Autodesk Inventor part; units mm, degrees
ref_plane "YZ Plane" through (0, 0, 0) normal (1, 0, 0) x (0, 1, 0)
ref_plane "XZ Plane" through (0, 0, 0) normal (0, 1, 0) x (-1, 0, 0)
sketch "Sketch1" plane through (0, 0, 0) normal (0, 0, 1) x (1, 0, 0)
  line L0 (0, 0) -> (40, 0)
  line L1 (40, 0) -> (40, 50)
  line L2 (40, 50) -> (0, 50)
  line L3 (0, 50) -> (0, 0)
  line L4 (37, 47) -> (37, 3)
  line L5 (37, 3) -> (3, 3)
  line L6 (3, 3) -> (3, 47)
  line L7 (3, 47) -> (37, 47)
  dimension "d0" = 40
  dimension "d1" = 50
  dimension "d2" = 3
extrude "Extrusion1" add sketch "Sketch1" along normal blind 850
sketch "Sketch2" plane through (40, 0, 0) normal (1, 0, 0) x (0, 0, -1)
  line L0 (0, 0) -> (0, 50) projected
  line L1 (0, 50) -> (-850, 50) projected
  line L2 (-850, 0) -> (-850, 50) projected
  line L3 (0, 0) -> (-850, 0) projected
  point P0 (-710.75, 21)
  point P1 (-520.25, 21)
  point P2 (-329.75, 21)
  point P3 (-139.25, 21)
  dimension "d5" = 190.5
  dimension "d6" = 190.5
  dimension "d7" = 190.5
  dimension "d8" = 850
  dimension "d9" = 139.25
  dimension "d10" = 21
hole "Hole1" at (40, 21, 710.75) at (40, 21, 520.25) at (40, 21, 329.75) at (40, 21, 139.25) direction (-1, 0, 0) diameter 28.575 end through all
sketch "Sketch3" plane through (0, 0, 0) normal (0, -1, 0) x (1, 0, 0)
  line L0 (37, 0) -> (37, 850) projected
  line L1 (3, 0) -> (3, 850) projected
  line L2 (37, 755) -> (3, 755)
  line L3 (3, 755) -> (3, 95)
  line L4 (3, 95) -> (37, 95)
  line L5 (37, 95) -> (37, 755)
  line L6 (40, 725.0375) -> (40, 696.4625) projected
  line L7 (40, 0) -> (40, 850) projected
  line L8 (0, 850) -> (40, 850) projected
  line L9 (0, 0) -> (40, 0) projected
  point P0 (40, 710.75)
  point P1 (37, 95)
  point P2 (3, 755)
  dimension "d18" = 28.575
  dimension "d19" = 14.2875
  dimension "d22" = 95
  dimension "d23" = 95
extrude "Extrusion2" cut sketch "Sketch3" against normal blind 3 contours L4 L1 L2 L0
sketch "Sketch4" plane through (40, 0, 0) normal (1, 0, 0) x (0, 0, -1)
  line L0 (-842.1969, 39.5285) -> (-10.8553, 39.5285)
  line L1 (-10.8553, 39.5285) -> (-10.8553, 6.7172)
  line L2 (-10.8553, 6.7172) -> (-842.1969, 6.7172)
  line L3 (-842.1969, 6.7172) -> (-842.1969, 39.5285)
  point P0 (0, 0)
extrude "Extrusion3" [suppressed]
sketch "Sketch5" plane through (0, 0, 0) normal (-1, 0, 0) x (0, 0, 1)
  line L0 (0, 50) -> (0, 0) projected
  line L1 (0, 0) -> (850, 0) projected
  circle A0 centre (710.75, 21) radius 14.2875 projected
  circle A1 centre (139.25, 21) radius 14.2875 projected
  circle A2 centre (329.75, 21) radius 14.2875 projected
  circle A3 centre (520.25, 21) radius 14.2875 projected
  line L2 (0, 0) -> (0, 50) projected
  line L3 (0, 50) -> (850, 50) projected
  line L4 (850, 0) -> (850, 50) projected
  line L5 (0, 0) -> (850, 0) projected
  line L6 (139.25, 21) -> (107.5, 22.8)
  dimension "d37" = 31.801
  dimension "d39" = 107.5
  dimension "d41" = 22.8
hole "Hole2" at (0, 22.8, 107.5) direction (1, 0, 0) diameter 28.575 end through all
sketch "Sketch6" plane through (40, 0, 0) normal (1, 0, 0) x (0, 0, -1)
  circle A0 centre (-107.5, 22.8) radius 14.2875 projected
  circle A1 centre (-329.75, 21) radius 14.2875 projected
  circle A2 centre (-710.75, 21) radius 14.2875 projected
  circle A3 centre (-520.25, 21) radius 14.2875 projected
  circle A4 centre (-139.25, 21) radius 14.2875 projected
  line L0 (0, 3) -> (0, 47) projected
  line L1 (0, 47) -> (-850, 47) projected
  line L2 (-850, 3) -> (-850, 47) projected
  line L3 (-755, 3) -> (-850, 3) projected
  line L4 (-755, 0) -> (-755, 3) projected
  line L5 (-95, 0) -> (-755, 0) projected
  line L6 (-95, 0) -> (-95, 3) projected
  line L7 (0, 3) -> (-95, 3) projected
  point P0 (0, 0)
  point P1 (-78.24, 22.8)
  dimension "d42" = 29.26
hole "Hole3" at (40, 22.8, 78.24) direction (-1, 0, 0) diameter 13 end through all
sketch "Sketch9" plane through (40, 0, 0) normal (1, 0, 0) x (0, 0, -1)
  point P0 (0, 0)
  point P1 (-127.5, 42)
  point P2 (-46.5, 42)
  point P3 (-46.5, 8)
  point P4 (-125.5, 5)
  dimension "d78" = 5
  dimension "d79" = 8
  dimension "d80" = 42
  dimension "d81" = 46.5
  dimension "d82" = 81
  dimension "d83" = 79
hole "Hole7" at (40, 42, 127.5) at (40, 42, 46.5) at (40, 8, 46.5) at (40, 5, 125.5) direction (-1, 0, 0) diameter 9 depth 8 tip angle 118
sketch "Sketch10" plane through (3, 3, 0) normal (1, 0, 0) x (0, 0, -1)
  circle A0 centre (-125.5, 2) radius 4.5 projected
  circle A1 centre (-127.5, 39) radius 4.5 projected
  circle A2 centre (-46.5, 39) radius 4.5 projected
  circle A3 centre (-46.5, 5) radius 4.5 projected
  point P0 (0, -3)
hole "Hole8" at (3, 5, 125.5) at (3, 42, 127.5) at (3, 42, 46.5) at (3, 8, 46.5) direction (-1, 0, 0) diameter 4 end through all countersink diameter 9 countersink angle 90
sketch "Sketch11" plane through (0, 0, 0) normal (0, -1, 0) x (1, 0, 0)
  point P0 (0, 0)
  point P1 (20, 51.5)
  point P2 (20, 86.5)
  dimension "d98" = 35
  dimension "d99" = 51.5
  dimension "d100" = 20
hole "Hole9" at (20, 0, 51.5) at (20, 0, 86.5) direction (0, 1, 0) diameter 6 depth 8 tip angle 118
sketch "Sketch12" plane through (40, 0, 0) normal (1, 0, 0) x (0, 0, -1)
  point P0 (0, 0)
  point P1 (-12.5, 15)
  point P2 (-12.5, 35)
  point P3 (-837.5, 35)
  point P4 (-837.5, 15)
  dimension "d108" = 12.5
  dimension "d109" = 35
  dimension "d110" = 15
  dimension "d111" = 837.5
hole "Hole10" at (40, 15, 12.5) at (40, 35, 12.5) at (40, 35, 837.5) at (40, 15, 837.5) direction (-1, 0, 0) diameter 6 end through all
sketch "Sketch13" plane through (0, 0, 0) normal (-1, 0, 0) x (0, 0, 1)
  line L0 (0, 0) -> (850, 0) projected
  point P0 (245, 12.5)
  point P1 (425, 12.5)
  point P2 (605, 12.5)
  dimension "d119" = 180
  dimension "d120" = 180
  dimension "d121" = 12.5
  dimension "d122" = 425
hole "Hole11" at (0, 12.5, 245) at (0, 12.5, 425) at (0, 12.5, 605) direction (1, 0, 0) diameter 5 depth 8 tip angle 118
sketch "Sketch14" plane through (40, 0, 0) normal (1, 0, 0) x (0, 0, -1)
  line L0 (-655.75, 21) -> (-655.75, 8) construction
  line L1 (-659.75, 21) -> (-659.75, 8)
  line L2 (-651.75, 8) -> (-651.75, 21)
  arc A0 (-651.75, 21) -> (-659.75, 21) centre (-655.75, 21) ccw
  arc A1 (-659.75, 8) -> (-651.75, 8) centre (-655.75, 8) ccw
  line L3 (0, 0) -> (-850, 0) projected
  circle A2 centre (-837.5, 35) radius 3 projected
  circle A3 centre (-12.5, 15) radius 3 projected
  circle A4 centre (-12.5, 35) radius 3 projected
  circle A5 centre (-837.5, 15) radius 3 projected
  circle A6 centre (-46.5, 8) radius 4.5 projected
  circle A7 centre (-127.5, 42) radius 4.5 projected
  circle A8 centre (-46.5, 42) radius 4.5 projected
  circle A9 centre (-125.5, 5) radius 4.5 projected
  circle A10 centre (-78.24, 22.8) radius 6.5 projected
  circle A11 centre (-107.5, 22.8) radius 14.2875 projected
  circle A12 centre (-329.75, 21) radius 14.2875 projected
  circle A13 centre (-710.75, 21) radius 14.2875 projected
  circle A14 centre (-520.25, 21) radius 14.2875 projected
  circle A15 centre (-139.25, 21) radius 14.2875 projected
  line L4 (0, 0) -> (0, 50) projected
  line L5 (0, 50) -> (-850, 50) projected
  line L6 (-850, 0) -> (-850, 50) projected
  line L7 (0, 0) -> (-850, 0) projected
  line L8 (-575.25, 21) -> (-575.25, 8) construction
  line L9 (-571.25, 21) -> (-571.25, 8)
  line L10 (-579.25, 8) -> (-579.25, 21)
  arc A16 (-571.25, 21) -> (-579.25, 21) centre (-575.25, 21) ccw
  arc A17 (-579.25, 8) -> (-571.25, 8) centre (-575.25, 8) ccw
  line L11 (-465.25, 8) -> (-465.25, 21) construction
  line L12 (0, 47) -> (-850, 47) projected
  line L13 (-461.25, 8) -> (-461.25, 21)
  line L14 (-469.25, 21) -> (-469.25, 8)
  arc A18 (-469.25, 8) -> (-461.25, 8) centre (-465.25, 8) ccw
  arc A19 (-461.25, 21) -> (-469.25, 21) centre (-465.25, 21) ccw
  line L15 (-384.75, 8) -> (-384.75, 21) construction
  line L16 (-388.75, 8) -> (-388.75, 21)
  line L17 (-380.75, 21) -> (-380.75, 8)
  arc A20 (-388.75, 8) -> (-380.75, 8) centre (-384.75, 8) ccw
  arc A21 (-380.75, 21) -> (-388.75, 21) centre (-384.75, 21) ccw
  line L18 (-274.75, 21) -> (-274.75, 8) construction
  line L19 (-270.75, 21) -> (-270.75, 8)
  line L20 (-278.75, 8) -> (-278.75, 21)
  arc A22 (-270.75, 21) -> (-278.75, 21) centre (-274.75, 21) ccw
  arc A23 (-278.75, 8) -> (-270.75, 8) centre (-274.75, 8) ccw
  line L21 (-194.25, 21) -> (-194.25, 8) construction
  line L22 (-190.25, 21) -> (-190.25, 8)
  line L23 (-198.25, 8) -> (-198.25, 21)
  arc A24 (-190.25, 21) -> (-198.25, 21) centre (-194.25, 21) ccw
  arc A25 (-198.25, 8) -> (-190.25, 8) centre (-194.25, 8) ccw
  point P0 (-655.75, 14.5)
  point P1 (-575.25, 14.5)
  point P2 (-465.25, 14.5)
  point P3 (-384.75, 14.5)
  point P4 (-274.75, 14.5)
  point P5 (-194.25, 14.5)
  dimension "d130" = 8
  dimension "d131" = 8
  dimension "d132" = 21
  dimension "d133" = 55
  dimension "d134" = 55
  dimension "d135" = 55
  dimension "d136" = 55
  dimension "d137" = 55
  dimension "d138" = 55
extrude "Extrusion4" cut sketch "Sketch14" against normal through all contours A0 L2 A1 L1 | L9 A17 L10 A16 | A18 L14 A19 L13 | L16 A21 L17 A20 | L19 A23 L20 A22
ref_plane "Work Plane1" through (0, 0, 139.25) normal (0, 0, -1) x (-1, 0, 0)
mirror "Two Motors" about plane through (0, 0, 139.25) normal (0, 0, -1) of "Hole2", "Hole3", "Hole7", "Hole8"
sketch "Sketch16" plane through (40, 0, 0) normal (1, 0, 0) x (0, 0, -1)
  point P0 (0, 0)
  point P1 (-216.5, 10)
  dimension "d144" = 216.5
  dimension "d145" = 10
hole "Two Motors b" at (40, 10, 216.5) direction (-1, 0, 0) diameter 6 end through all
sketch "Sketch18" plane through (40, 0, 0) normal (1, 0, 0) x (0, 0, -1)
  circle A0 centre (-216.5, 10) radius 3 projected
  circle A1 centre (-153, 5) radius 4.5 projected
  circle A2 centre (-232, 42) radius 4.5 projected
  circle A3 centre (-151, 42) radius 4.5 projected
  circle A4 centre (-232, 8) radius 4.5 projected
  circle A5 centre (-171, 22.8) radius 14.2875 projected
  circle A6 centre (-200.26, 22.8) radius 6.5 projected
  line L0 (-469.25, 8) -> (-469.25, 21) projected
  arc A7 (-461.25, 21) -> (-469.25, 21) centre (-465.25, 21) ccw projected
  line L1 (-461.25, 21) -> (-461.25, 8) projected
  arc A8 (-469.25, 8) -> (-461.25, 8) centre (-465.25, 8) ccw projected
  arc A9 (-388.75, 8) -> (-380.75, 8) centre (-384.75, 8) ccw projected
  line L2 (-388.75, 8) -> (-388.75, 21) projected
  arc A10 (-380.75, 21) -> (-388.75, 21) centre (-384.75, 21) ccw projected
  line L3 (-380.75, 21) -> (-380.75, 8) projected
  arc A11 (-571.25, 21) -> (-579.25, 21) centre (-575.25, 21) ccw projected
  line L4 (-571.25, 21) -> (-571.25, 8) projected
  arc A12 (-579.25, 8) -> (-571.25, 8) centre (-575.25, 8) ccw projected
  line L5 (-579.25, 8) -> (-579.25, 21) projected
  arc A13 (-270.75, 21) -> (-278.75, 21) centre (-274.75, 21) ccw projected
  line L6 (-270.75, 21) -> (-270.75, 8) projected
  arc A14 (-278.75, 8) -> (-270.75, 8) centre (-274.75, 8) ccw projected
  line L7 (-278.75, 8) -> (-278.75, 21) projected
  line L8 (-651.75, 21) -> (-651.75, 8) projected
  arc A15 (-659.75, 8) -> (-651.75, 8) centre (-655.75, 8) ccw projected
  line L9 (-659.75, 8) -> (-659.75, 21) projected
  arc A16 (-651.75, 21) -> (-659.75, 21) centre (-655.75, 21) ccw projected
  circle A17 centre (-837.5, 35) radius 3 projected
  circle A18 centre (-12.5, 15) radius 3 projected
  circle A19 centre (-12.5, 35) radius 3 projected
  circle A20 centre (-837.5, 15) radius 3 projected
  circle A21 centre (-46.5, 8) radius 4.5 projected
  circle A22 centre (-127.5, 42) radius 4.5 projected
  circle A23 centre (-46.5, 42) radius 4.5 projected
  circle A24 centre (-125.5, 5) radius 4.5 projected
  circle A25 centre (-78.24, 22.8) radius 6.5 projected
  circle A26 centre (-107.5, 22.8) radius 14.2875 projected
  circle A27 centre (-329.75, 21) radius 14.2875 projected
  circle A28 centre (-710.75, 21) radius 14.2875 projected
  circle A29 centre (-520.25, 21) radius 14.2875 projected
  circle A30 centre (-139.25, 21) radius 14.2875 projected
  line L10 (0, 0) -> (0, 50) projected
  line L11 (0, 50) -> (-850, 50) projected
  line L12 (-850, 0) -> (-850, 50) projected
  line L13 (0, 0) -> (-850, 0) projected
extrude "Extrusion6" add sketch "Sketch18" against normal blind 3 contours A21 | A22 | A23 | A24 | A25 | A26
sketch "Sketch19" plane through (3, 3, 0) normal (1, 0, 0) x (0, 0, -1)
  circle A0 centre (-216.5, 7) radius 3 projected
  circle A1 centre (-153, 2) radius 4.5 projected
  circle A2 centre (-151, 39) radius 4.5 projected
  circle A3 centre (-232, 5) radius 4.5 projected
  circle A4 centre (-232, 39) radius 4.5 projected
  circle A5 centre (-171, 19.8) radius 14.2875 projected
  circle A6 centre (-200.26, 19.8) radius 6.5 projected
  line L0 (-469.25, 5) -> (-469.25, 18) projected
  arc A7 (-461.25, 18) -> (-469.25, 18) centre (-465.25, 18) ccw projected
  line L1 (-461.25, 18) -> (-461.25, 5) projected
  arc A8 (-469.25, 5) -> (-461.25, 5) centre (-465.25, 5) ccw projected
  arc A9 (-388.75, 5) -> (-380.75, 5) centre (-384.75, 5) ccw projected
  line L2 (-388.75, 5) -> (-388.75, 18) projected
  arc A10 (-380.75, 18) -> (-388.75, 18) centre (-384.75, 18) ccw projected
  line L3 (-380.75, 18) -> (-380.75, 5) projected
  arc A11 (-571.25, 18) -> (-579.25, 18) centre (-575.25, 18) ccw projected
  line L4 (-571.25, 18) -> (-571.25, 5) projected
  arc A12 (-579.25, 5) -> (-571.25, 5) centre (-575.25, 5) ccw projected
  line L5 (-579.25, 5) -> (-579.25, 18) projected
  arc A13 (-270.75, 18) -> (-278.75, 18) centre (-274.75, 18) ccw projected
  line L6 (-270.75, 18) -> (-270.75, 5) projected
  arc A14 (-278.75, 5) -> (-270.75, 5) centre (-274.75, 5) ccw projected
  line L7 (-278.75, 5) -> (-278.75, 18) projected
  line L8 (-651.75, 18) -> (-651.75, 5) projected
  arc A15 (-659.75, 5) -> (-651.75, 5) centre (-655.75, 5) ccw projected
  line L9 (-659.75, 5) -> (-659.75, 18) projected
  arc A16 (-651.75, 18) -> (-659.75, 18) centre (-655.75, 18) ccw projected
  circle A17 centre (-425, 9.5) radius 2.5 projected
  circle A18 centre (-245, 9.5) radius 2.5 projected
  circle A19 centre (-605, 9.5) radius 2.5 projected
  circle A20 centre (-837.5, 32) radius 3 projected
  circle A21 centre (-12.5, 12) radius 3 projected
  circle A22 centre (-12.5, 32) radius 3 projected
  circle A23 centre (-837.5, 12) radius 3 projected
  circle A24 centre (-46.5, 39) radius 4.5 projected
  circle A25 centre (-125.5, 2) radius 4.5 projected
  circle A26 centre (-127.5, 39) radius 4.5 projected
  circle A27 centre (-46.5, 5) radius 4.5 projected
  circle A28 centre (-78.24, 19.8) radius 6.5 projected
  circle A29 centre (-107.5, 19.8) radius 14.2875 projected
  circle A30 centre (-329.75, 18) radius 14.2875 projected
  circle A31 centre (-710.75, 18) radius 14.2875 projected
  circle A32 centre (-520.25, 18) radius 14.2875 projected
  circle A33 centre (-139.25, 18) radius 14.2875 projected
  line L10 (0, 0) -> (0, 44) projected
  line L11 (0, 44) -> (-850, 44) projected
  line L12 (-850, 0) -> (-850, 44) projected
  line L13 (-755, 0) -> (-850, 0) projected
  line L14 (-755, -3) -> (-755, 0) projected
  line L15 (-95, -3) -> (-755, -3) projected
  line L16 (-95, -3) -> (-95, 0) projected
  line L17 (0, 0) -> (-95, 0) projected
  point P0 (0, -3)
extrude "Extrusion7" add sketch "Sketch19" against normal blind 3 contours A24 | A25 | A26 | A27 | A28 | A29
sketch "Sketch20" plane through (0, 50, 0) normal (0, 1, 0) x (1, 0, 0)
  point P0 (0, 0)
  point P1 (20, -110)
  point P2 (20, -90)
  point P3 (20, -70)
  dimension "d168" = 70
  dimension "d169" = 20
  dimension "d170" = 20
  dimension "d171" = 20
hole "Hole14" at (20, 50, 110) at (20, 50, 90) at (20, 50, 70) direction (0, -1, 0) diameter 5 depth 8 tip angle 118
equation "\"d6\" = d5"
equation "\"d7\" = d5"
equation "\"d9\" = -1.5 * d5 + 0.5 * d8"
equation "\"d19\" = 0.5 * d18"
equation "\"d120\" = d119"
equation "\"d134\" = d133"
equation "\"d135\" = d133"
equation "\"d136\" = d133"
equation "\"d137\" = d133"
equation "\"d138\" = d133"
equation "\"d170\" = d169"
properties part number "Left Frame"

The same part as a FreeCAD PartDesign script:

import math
import FreeCAD as App
import Part
import Sketcher

doc = App.newDocument("Part")
body = doc.addObject("PartDesign::Body", "Body")

# Sketch on XY plane
sketch1 = body.newObject("Sketcher::SketchObject", "Sketch")
sketch1.AttachmentSupport = (doc.getObject("XY_Plane"), [""])
sketch1.MapMode = "FlatFace"
sketch1.addGeometry(Part.LineSegment(App.Vector(0, 50, 0), App.Vector(0, 0, 0)), False)
sketch1.addGeometry(Part.LineSegment(App.Vector(0, 0, 0), App.Vector(40, 0, 0)), False)
sketch1.addGeometry(Part.LineSegment(App.Vector(40, 0, 0), App.Vector(40, 50, 0)), False)
sketch1.addGeometry(Part.LineSegment(App.Vector(40, 50, 0), App.Vector(0, 50, 0)), False)
sketch1.addGeometry(Part.LineSegment(App.Vector(3, 47, 0), App.Vector(37, 47, 0)), False)
sketch1.addGeometry(Part.LineSegment(App.Vector(37, 47, 0), App.Vector(37, 3, 0)), False)
sketch1.addGeometry(Part.LineSegment(App.Vector(37, 3, 0), App.Vector(3, 3, 0)), False)
sketch1.addGeometry(Part.LineSegment(App.Vector(3, 3, 0), App.Vector(3, 47, 0)), False)
sketch1.addConstraint(Sketcher.Constraint("Coincident", 0, 2, 1, 1))
sketch1.addConstraint(Sketcher.Constraint("Coincident", 1, 2, 2, 1))
sketch1.addConstraint(Sketcher.Constraint("Coincident", 2, 2, 3, 1))
sketch1.addConstraint(Sketcher.Constraint("Coincident", 3, 2, 0, 1))
sketch1.addConstraint(Sketcher.Constraint("Coincident", 4, 2, 5, 1))
sketch1.addConstraint(Sketcher.Constraint("Coincident", 5, 2, 6, 1))
sketch1.addConstraint(Sketcher.Constraint("Coincident", 6, 2, 7, 1))
sketch1.addConstraint(Sketcher.Constraint("Coincident", 7, 2, 4, 1))
sketch1.addConstraint(Sketcher.Constraint("Vertical", 0))
sketch1.addConstraint(Sketcher.Constraint("Horizontal", 1))
sketch1.addConstraint(Sketcher.Constraint("Vertical", 2))
sketch1.addConstraint(Sketcher.Constraint("Horizontal", 3))
sketch1.addConstraint(Sketcher.Constraint("Horizontal", 4))
sketch1.addConstraint(Sketcher.Constraint("Vertical", 5))
sketch1.addConstraint(Sketcher.Constraint("Horizontal", 6))
sketch1.addConstraint(Sketcher.Constraint("Vertical", 7))
sketch1.addConstraint(Sketcher.Constraint("Coincident", 0, 2, -1, 1))
sketch1.addConstraint(Sketcher.Constraint("DistanceX", 1, 1, 1, 2, 40.0))
sketch1.addConstraint(Sketcher.Constraint("DistanceY", 0, 2, 0, 1, 50.0))
sketch1.addConstraint(Sketcher.Constraint("DistanceY", -1, 1, 5, 2, 3.0))
sketch1.addConstraint(Sketcher.Constraint("DistanceX", -1, 1, 6, 2, 3.0))
sketch1.addConstraint(Sketcher.Constraint("DistanceX", 4, 2, 2, 2, 3.0))
sketch1.addConstraint(Sketcher.Constraint("DistanceY", 4, 2, 2, 2, 3.0))
pad1 = body.newObject("PartDesign::Pad", "Pad")
pad1.Profile = sketch1
pad1.Length = 850

# Sketch on YZ plane
sketch2 = body.newObject("Sketcher::SketchObject", "Sketch001")
sketch2.AttachmentSupport = (doc.getObject("YZ_Plane"), [""])
sketch2.MapMode = "FlatFace"
sketch2.AttachmentOffset = App.Placement(App.Vector(0, 0, 40), App.Rotation())
sketch2.addGeometry(Part.Circle(App.Vector(21, 711, 0), App.Vector(0, 0, 1), 14), False)
sketch2.addGeometry(Part.Circle(App.Vector(21, 520, 0), App.Vector(0, 0, 1), 14), False)
sketch2.addGeometry(Part.Circle(App.Vector(21, 330, 0), App.Vector(0, 0, 1), 14), False)
sketch2.addGeometry(Part.Circle(App.Vector(21, 139, 0), App.Vector(0, 0, 1), 14), False)
sketch2.addConstraint(Sketcher.Constraint("Equal", 0, 1))
sketch2.addConstraint(Sketcher.Constraint("Equal", 1, 2))
sketch2.addConstraint(Sketcher.Constraint("Equal", 2, 3))
sketch2.addConstraint(Sketcher.Constraint("Vertical", 0, 3, 1, 3))
sketch2.addConstraint(Sketcher.Constraint("Vertical", 1, 3, 2, 3))
sketch2.addConstraint(Sketcher.Constraint("Vertical", 2, 3, 3, 3))
sketch2.addConstraint(Sketcher.Constraint("Diameter", 0, 28.575))
sketch2.addConstraint(Sketcher.Constraint("DistanceX", -1, 1, 0, 3, 21.0))
sketch2.addConstraint(Sketcher.Constraint("DistanceY", 2, 3, 0, 3, 381.0))
sketch2.addConstraint(Sketcher.Constraint("DistanceY", 3, 3, 1, 3, 381.0))
sketch2.addConstraint(Sketcher.Constraint("DistanceY", 1, 3, 0, 3, 190.5))
sketch2.addConstraint(Sketcher.Constraint("DistanceY", -1, 1, 0, 3, 710.75))
doc.recompute()
hole = body.newObject("PartDesign::Hole", "Hole")
hole.Profile = sketch2
hole.ThreadType = "None"
hole.Diameter = 28.575
hole.DepthType = "ThroughAll"

# Sketch on XZ plane
sketch3 = body.newObject("Sketcher::SketchObject", "Sketch002")
sketch3.AttachmentSupport = (doc.getObject("XZ_Plane"), [""])
sketch3.MapMode = "FlatFace"
sketch3.addGeometry(Part.LineSegment(App.Vector(3, 95, 0), App.Vector(37, 95, 0)), False)
sketch3.addGeometry(Part.LineSegment(App.Vector(37, 95, 0), App.Vector(37, 755, 0)), False)
sketch3.addGeometry(Part.LineSegment(App.Vector(37, 755, 0), App.Vector(3, 755, 0)), False)
sketch3.addGeometry(Part.LineSegment(App.Vector(3, 755, 0), App.Vector(3, 95, 0)), False)
sketch3.addConstraint(Sketcher.Constraint("Coincident", 0, 2, 1, 1))
sketch3.addConstraint(Sketcher.Constraint("Coincident", 1, 2, 2, 1))
sketch3.addConstraint(Sketcher.Constraint("Coincident", 2, 2, 3, 1))
sketch3.addConstraint(Sketcher.Constraint("Coincident", 3, 2, 0, 1))
sketch3.addConstraint(Sketcher.Constraint("Horizontal", 0))
sketch3.addConstraint(Sketcher.Constraint("Vertical", 1))
sketch3.addConstraint(Sketcher.Constraint("Horizontal", 2))
sketch3.addConstraint(Sketcher.Constraint("Vertical", 3))
sketch3.addConstraint(Sketcher.Constraint("DistanceY", -1, 1, 0, 2, 95.0))
sketch3.addConstraint(Sketcher.Constraint("DistanceX", 0, 1, 0, 2, 34.0))
sketch3.addConstraint(Sketcher.Constraint("DistanceY", 1, 1, 1, 2, 660.0))
sketch3.addConstraint(Sketcher.Constraint("DistanceX", -1, 1, 0, 2, 37.0))
pocket1 = body.newObject("PartDesign::Pocket", "Pocket")
pocket1.Profile = sketch3
pocket1.Length = 3

# Sketch on YZ plane
sketch4 = body.newObject("Sketcher::SketchObject", "Sketch003")
sketch4.AttachmentSupport = (doc.getObject("YZ_Plane"), [""])
sketch4.MapMode = "FlatFace"
sketch4.addGeometry(Part.Circle(App.Vector(23, 108, 0), App.Vector(0, 0, 1), 14), False)
sketch4.addConstraint(Sketcher.Constraint("Diameter", 0, 28.575))
sketch4.addConstraint(Sketcher.Constraint("DistanceX", -1, 1, 0, 3, 22.8))
sketch4.addConstraint(Sketcher.Constraint("DistanceY", -1, 1, 0, 3, 107.5))
doc.recompute()
hole2 = body.newObject("PartDesign::Hole", "Hole001")
hole2.Profile = sketch4
hole2.ThreadType = "None"
hole2.Diameter = 28.575
hole2.DepthType = "ThroughAll"
hole2.Reversed = True

# Sketch on YZ plane
sketch5 = body.newObject("Sketcher::SketchObject", "Sketch004")
sketch5.AttachmentSupport = (doc.getObject("YZ_Plane"), [""])
sketch5.MapMode = "FlatFace"
sketch5.AttachmentOffset = App.Placement(App.Vector(0, 0, 40), App.Rotation())
sketch5.addGeometry(Part.Circle(App.Vector(23, 78, 0), App.Vector(0, 0, 1), 6), False)
sketch5.addConstraint(Sketcher.Constraint("Diameter", 0, 13.0))
sketch5.addConstraint(Sketcher.Constraint("DistanceX", -1, 1, 0, 3, 22.8))
sketch5.addConstraint(Sketcher.Constraint("DistanceY", -1, 1, 0, 3, 78.24))
doc.recompute()
hole3 = body.newObject("PartDesign::Hole", "Hole002")
hole3.Profile = sketch5
hole3.ThreadType = "None"
hole3.Diameter = 13
hole3.DepthType = "ThroughAll"

# Sketch on YZ plane
sketch6 = body.newObject("Sketcher::SketchObject", "Sketch005")
sketch6.AttachmentSupport = (doc.getObject("YZ_Plane"), [""])
sketch6.MapMode = "FlatFace"
sketch6.AttachmentOffset = App.Placement(App.Vector(0, 0, 40), App.Rotation())
sketch6.addGeometry(Part.Circle(App.Vector(42, 127.5, 0), App.Vector(0, 0, 1), 4.5), False)
sketch6.addGeometry(Part.Circle(App.Vector(42, 46.5, 0), App.Vector(0, 0, 1), 4.5), False)
sketch6.addGeometry(Part.Circle(App.Vector(8, 46.5, 0), App.Vector(0, 0, 1), 4.5), False)
sketch6.addGeometry(Part.Circle(App.Vector(5, 125.5, 0), App.Vector(0, 0, 1), 4.5), False)
sketch6.addConstraint(Sketcher.Constraint("Equal", 0, 1))
sketch6.addConstraint(Sketcher.Constraint("Equal", 1, 2))
sketch6.addConstraint(Sketcher.Constraint("Equal", 2, 3))
sketch6.addConstraint(Sketcher.Constraint("Horizontal", 1, 3, 2, 3))
sketch6.addConstraint(Sketcher.Constraint("Vertical", 0, 3, 1, 3))
sketch6.addConstraint(Sketcher.Constraint("Diameter", 0, 9.0))
sketch6.addConstraint(Sketcher.Constraint("DistanceX", -1, 1, 0, 3, 42.0))
sketch6.addConstraint(Sketcher.Constraint("DistanceX", -1, 1, 2, 3, 8.0))
sketch6.addConstraint(Sketcher.Constraint("DistanceX", -1, 1, 3, 3, 5.0))
sketch6.addConstraint(Sketcher.Constraint("DistanceY", 1, 3, 0, 3, 81.0))
sketch6.addConstraint(Sketcher.Constraint("DistanceY", 3, 3, 0, 3, 2.0))
sketch6.addConstraint(Sketcher.Constraint("DistanceY", -1, 1, 0, 3, 127.5))
doc.recompute()
hole4 = body.newObject("PartDesign::Hole", "Hole003")
hole4.Profile = sketch6
hole4.ThreadType = "None"
hole4.Diameter = 9
hole4.DepthType = "Dimension"
hole4.Depth = 8
hole4.DrillPoint = "Angled"
hole4.DrillPointAngle = 118

# Sketch on YZ plane
sketch7 = body.newObject("Sketcher::SketchObject", "Sketch006")
sketch7.AttachmentSupport = (doc.getObject("YZ_Plane"), [""])
sketch7.MapMode = "FlatFace"
sketch7.AttachmentOffset = App.Placement(App.Vector(0, 0, 3), App.Rotation())
sketch7.addGeometry(Part.Circle(App.Vector(5, 125.5, 0), App.Vector(0, 0, 1), 2), False)
sketch7.addGeometry(Part.Circle(App.Vector(42, 127.5, 0), App.Vector(0, 0, 1), 2), False)
sketch7.addGeometry(Part.Circle(App.Vector(42, 46.5, 0), App.Vector(0, 0, 1), 2), False)
sketch7.addGeometry(Part.Circle(App.Vector(8, 46.5, 0), App.Vector(0, 0, 1), 2), False)
sketch7.addConstraint(Sketcher.Constraint("Equal", 0, 1))
sketch7.addConstraint(Sketcher.Constraint("Equal", 1, 2))
sketch7.addConstraint(Sketcher.Constraint("Equal", 2, 3))
sketch7.addConstraint(Sketcher.Constraint("Horizontal", 2, 3, 3, 3))
sketch7.addConstraint(Sketcher.Constraint("Vertical", 1, 3, 2, 3))
sketch7.addConstraint(Sketcher.Constraint("Diameter", 0, 4.0))
sketch7.addConstraint(Sketcher.Constraint("DistanceX", -1, 1, 0, 3, 5.0))
sketch7.addConstraint(Sketcher.Constraint("DistanceX", -1, 1, 1, 3, 42.0))
sketch7.addConstraint(Sketcher.Constraint("DistanceX", -1, 1, 3, 3, 8.0))
sketch7.addConstraint(Sketcher.Constraint("DistanceY", 0, 3, 1, 3, 2.0))
sketch7.addConstraint(Sketcher.Constraint("DistanceY", 2, 3, 1, 3, 81.0))
sketch7.addConstraint(Sketcher.Constraint("DistanceY", -1, 1, 0, 3, 125.5))
doc.recompute()
hole5 = body.newObject("PartDesign::Hole", "Hole004")
hole5.Profile = sketch7
hole5.ThreadType = "None"
hole5.Diameter = 4
hole5.DepthType = "ThroughAll"
hole5.HoleCutType = "Countersink"
hole5.HoleCutDiameter = 9
hole5.HoleCutCountersinkAngle = 90

# Sketch on XZ plane
sketch8 = body.newObject("Sketcher::SketchObject", "Sketch007")
sketch8.AttachmentSupport = (doc.getObject("XZ_Plane"), [""])
sketch8.MapMode = "FlatFace"
sketch8.addGeometry(Part.Circle(App.Vector(20, 51.5, 0), App.Vector(0, 0, 1), 3), False)
sketch8.addGeometry(Part.Circle(App.Vector(20, 86.5, 0), App.Vector(0, 0, 1), 3), False)
sketch8.addConstraint(Sketcher.Constraint("Equal", 0, 1))
sketch8.addConstraint(Sketcher.Constraint("Vertical", 0, 3, 1, 3))
sketch8.addConstraint(Sketcher.Constraint("Diameter", 0, 6.0))
sketch8.addConstraint(Sketcher.Constraint("DistanceX", -1, 1, 0, 3, 20.0))
sketch8.addConstraint(Sketcher.Constraint("DistanceY", 0, 3, 1, 3, 35.0))
sketch8.addConstraint(Sketcher.Constraint("DistanceY", -1, 1, 0, 3, 51.5))
doc.recompute()
hole6 = body.newObject("PartDesign::Hole", "Hole005")
hole6.Profile = sketch8
hole6.ThreadType = "None"
hole6.Diameter = 6
hole6.DepthType = "Dimension"
hole6.Depth = 8
hole6.DrillPoint = "Angled"
hole6.DrillPointAngle = 118

# Sketch on YZ plane
sketch9 = body.newObject("Sketcher::SketchObject", "Sketch008")
sketch9.AttachmentSupport = (doc.getObject("YZ_Plane"), [""])
sketch9.MapMode = "FlatFace"
sketch9.AttachmentOffset = App.Placement(App.Vector(0, 0, 40), App.Rotation())
sketch9.addGeometry(Part.Circle(App.Vector(15, 12.5, 0), App.Vector(0, 0, 1), 3), False)
sketch9.addGeometry(Part.Circle(App.Vector(35, 12.5, 0), App.Vector(0, 0, 1), 3), False)
sketch9.addGeometry(Part.Circle(App.Vector(35, 837.5, 0), App.Vector(0, 0, 1), 3), False)
sketch9.addGeometry(Part.Circle(App.Vector(15, 837.5, 0), App.Vector(0, 0, 1), 3), False)
sketch9.addConstraint(Sketcher.Constraint("Equal", 0, 1))
sketch9.addConstraint(Sketcher.Constraint("Equal", 1, 2))
sketch9.addConstraint(Sketcher.Constraint("Equal", 2, 3))
sketch9.addConstraint(Sketcher.Constraint("Horizontal", 0, 3, 1, 3))
sketch9.addConstraint(Sketcher.Constraint("Horizontal", 2, 3, 3, 3))
sketch9.addConstraint(Sketcher.Constraint("Vertical", 1, 3, 2, 3))
sketch9.addConstraint(Sketcher.Constraint("Vertical", 0, 3, 3, 3))
sketch9.addConstraint(Sketcher.Constraint("Diameter", 0, 6.0))
sketch9.addConstraint(Sketcher.Constraint("DistanceX", -1, 1, 0, 3, 15.0))
sketch9.addConstraint(Sketcher.Constraint("DistanceX", -1, 1, 1, 3, 35.0))
sketch9.addConstraint(Sketcher.Constraint("DistanceY", 1, 3, 2, 3, 825.0))
sketch9.addConstraint(Sketcher.Constraint("DistanceY", -1, 1, 0, 3, 12.5))
doc.recompute()
hole7 = body.newObject("PartDesign::Hole", "Hole006")
hole7.Profile = sketch9
hole7.ThreadType = "None"
hole7.Diameter = 6
hole7.DepthType = "ThroughAll"

# Sketch on YZ plane
sketch10 = body.newObject("Sketcher::SketchObject", "Sketch009")
sketch10.AttachmentSupport = (doc.getObject("YZ_Plane"), [""])
sketch10.MapMode = "FlatFace"
sketch10.addGeometry(Part.Circle(App.Vector(12.5, 245, 0), App.Vector(0, 0, 1), 2.5), False)
sketch10.addGeometry(Part.Circle(App.Vector(12.5, 425, 0), App.Vector(0, 0, 1), 2.5), False)
sketch10.addGeometry(Part.Circle(App.Vector(12.5, 605, 0), App.Vector(0, 0, 1), 2.5), False)
sketch10.addConstraint(Sketcher.Constraint("Equal", 0, 1))
sketch10.addConstraint(Sketcher.Constraint("Equal", 1, 2))
sketch10.addConstraint(Sketcher.Constraint("Vertical", 0, 3, 1, 3))
sketch10.addConstraint(Sketcher.Constraint("Vertical", 1, 3, 2, 3))
sketch10.addConstraint(Sketcher.Constraint("Diameter", 0, 5.0))
sketch10.addConstraint(Sketcher.Constraint("DistanceY", -1, 1, 0, 3, 245.0))
sketch10.addConstraint(Sketcher.Constraint("DistanceY", -1, 1, 1, 3, 425.0))
sketch10.addConstraint(Sketcher.Constraint("DistanceY", -1, 1, 2, 3, 605.0))
sketch10.addConstraint(Sketcher.Constraint("DistanceX", -1, 1, 0, 3, 12.5))
doc.recompute()
hole8 = body.newObject("PartDesign::Hole", "Hole007")
hole8.Profile = sketch10
hole8.ThreadType = "None"
hole8.Diameter = 5
hole8.DepthType = "Dimension"
hole8.Depth = 8
hole8.DrillPoint = "Angled"
hole8.DrillPointAngle = 118
hole8.Reversed = True

# Sketch on YZ plane
sketch11 = body.newObject("Sketcher::SketchObject", "Sketch010")
sketch11.AttachmentSupport = (doc.getObject("YZ_Plane"), [""])
sketch11.MapMode = "FlatFace"
sketch11.AttachmentOffset = App.Placement(App.Vector(0, 0, 40), App.Rotation())
sketch11.addGeometry(Part.ArcOfCircle(Part.Circle(App.Vector(21, 655.8, 0), App.Vector(0, 0, 1), 4), math.radians(-90), math.radians(90)), False)
sketch11.addGeometry(Part.LineSegment(App.Vector(21, 659.8, 0), App.Vector(8, 659.8, 0)), False)
sketch11.addGeometry(Part.ArcOfCircle(Part.Circle(App.Vector(8, 655.8, 0), App.Vector(0, 0, 1), 4), math.radians(90), math.radians(270)), False)
sketch11.addGeometry(Part.LineSegment(App.Vector(8, 651.8, 0), App.Vector(21, 651.8, 0)), False)
sketch11.addGeometry(Part.LineSegment(App.Vector(8, 571.2, 0), App.Vector(21, 571.2, 0)), False)
sketch11.addGeometry(Part.ArcOfCircle(Part.Circle(App.Vector(21, 575.2, 0), App.Vector(0, 0, 1), 4), math.radians(-90), math.radians(90)), False)
sketch11.addGeometry(Part.LineSegment(App.Vector(21, 579.2, 0), App.Vector(8, 579.2, 0)), False)
sketch11.addGeometry(Part.ArcOfCircle(Part.Circle(App.Vector(8, 575.2, 0), App.Vector(0, 0, 1), 4), math.radians(90), math.radians(270)), False)
sketch11.addGeometry(Part.ArcOfCircle(Part.Circle(App.Vector(8, 465.2, 0), App.Vector(0, 0, 1), 4), math.radians(90), math.radians(270)), False)
sketch11.addGeometry(Part.LineSegment(App.Vector(8, 461.2, 0), App.Vector(21, 461.2, 0)), False)
sketch11.addGeometry(Part.ArcOfCircle(Part.Circle(App.Vector(21, 465.2, 0), App.Vector(0, 0, 1), 4), math.radians(-90), math.radians(90)), False)
sketch11.addGeometry(Part.LineSegment(App.Vector(21, 469.2, 0), App.Vector(8, 469.2, 0)), False)
sketch11.addGeometry(Part.LineSegment(App.Vector(21, 388.8, 0), App.Vector(8, 388.8, 0)), False)
sketch11.addGeometry(Part.ArcOfCircle(Part.Circle(App.Vector(8, 384.8, 0), App.Vector(0, 0, 1), 4), math.radians(90), math.radians(270)), False)
sketch11.addGeometry(Part.LineSegment(App.Vector(8, 380.8, 0), App.Vector(21, 380.8, 0)), False)
sketch11.addGeometry(Part.ArcOfCircle(Part.Circle(App.Vector(21, 384.8, 0), App.Vector(0, 0, 1), 4), math.radians(-90), math.radians(90)), False)
sketch11.addGeometry(Part.LineSegment(App.Vector(8, 270.8, 0), App.Vector(21, 270.8, 0)), False)
sketch11.addGeometry(Part.ArcOfCircle(Part.Circle(App.Vector(21, 274.8, 0), App.Vector(0, 0, 1), 4), math.radians(-90), math.radians(90)), False)
sketch11.addGeometry(Part.LineSegment(App.Vector(21, 278.8, 0), App.Vector(8, 278.8, 0)), False)
sketch11.addGeometry(Part.ArcOfCircle(Part.Circle(App.Vector(8, 274.8, 0), App.Vector(0, 0, 1), 4), math.radians(90), math.radians(270)), False)
sketch11.addConstraint(Sketcher.Constraint("Tangent", 0, 2, 1, 1))
sketch11.addConstraint(Sketcher.Constraint("Tangent", 1, 2, 2, 1))
sketch11.addConstraint(Sketcher.Constraint("Tangent", 2, 2, 3, 1))
sketch11.addConstraint(Sketcher.Constraint("Tangent", 3, 2, 0, 1))
sketch11.addConstraint(Sketcher.Constraint("Tangent", 4, 2, 5, 1))
sketch11.addConstraint(Sketcher.Constraint("Tangent", 5, 2, 6, 1))
sketch11.addConstraint(Sketcher.Constraint("Tangent", 6, 2, 7, 1))
sketch11.addConstraint(Sketcher.Constraint("Tangent", 7, 2, 4, 1))
sketch11.addConstraint(Sketcher.Constraint("Tangent", 8, 2, 9, 1))
sketch11.addConstraint(Sketcher.Constraint("Tangent", 9, 2, 10, 1))
sketch11.addConstraint(Sketcher.Constraint("Tangent", 10, 2, 11, 1))
sketch11.addConstraint(Sketcher.Constraint("Tangent", 11, 2, 8, 1))
sketch11.addConstraint(Sketcher.Constraint("Tangent", 12, 2, 13, 1))
sketch11.addConstraint(Sketcher.Constraint("Tangent", 13, 2, 14, 1))
sketch11.addConstraint(Sketcher.Constraint("Tangent", 14, 2, 15, 1))
sketch11.addConstraint(Sketcher.Constraint("Tangent", 15, 2, 12, 1))
sketch11.addConstraint(Sketcher.Constraint("Tangent", 16, 2, 17, 1))
sketch11.addConstraint(Sketcher.Constraint("Tangent", 17, 2, 18, 1))
sketch11.addConstraint(Sketcher.Constraint("Tangent", 18, 2, 19, 1))
sketch11.addConstraint(Sketcher.Constraint("Tangent", 19, 2, 16, 1))
sketch11.addConstraint(Sketcher.Constraint("Horizontal", 1))
sketch11.addConstraint(Sketcher.Constraint("Horizontal", 3))
sketch11.addConstraint(Sketcher.Constraint("Horizontal", 4))
sketch11.addConstraint(Sketcher.Constraint("Horizontal", 6))
sketch11.addConstraint(Sketcher.Constraint("Horizontal", 9))
sketch11.addConstraint(Sketcher.Constraint("Horizontal", 11))
sketch11.addConstraint(Sketcher.Constraint("Horizontal", 12))
sketch11.addConstraint(Sketcher.Constraint("Horizontal", 14))
sketch11.addConstraint(Sketcher.Constraint("Horizontal", 16))
sketch11.addConstraint(Sketcher.Constraint("Horizontal", 18))
sketch11.addConstraint(Sketcher.Constraint("Equal", 2, 5))
sketch11.addConstraint(Sketcher.Constraint("Equal", 7, 8))
sketch11.addConstraint(Sketcher.Constraint("Equal", 10, 13))
sketch11.addConstraint(Sketcher.Constraint("Equal", 15, 17))
sketch11.addConstraint(Sketcher.Constraint("Vertical", 0, 3, 5, 3))
sketch11.addConstraint(Sketcher.Constraint("Vertical", 2, 3, 7, 3))
sketch11.addConstraint(Sketcher.Constraint("Vertical", 7, 3, 8, 3))
sketch11.addConstraint(Sketcher.Constraint("Vertical", 5, 3, 10, 3))
sketch11.addConstraint(Sketcher.Constraint("Vertical", 8, 3, 13, 3))
sketch11.addConstraint(Sketcher.Constraint("Vertical", 10, 3, 15, 3))
sketch11.addConstraint(Sketcher.Constraint("Vertical", 15, 3, 17, 3))
sketch11.addConstraint(Sketcher.Constraint("Vertical", 13, 3, 19, 3))
sketch11.addConstraint(Sketcher.Constraint("Radius", 0, 4.0))
sketch11.addConstraint(Sketcher.Constraint("DistanceX", -1, 1, 0, 3, 21.0))
sketch11.addConstraint(Sketcher.Constraint("DistanceX", -1, 1, 2, 3, 8.0))
sketch11.addConstraint(Sketcher.Constraint("DistanceY", 8, 3, 7, 3, 110.0))
sketch11.addConstraint(Sketcher.Constraint("DistanceY", 13, 3, 2, 3, 271.0))
sketch11.addConstraint(Sketcher.Constraint("DistanceY", 17, 3, 15, 3, 110.0))
sketch11.addConstraint(Sketcher.Constraint("DistanceY", 5, 3, 0, 3, 80.5))
sketch11.addConstraint(Sketcher.Constraint("DistanceY", -1, 1, 0, 3, 655.75))
pocket2 = body.newObject("PartDesign::Pocket", "Pocket001")
pocket2.Profile = sketch11
pocket2.Type = "ThroughAll"
doc.recompute()

datumplane = body.newObject("PartDesign::Plane", "DatumPlane")
datumplane.AttachmentSupport = (doc.getObject("XY_Plane"), [""])
datumplane.MapMode = "FlatFace"
datumplane.AttachmentOffset = App.Placement(App.Vector(0, 0, 139.25), App.Rotation())
mirrored = body.newObject("PartDesign::Mirrored", "Mirrored")
mirrored.Originals = [hole2, hole3, hole4, hole5]
mirrored.MirrorPlane = (datumplane, [""])
body.Tip = mirrored

# Sketch on YZ plane
sketch12 = body.newObject("Sketcher::SketchObject", "Sketch011")
sketch12.AttachmentSupport = (doc.getObject("YZ_Plane"), [""])
sketch12.MapMode = "FlatFace"
sketch12.AttachmentOffset = App.Placement(App.Vector(0, 0, 40), App.Rotation())
sketch12.addGeometry(Part.Circle(App.Vector(10, 216.5, 0), App.Vector(0, 0, 1), 3), False)
sketch12.addConstraint(Sketcher.Constraint("Diameter", 0, 6.0))
sketch12.addConstraint(Sketcher.Constraint("DistanceX", -1, 1, 0, 3, 10.0))
sketch12.addConstraint(Sketcher.Constraint("DistanceY", -1, 1, 0, 3, 216.5))
doc.recompute()
hole9 = body.newObject("PartDesign::Hole", "Hole008")
hole9.Profile = sketch12
hole9.ThreadType = "None"
hole9.Diameter = 6
hole9.DepthType = "ThroughAll"

# Sketch on YZ plane
sketch13 = body.newObject("Sketcher::SketchObject", "Sketch012")
sketch13.AttachmentSupport = (doc.getObject("YZ_Plane"), [""])
sketch13.MapMode = "FlatFace"
sketch13.AttachmentOffset = App.Placement(App.Vector(0, 0, 40), App.Rotation())
sketch13.addGeometry(Part.Circle(App.Vector(8, 46.5, 0), App.Vector(0, 0, 1), 4.5), False)
sketch13.addGeometry(Part.Circle(App.Vector(42, 127.5, 0), App.Vector(0, 0, 1), 4.5), False)
sketch13.addGeometry(Part.Circle(App.Vector(42, 46.5, 0), App.Vector(0, 0, 1), 4.5), False)
sketch13.addGeometry(Part.Circle(App.Vector(5, 125.5, 0), App.Vector(0, 0, 1), 4.5), False)
sketch13.addGeometry(Part.Circle(App.Vector(22.8, 78.2, 0), App.Vector(0, 0, 1), 6.5), False)
sketch13.addGeometry(Part.Circle(App.Vector(22.8, 107.5, 0), App.Vector(0, 0, 1), 14.3), False)
sketch13.addConstraint(Sketcher.Constraint("Equal", 0, 1))
sketch13.addConstraint(Sketcher.Constraint("Equal", 1, 2))
sketch13.addConstraint(Sketcher.Constraint("Equal", 2, 3))
sketch13.addConstraint(Sketcher.Constraint("Horizontal", 0, 3, 2, 3))
sketch13.addConstraint(Sketcher.Constraint("Vertical", 1, 3, 2, 3))
sketch13.addConstraint(Sketcher.Constraint("Vertical", 4, 3, 5, 3))
sketch13.addConstraint(Sketcher.Constraint("Diameter", 0, 9.0))
sketch13.addConstraint(Sketcher.Constraint("Diameter", 4, 13.0))
sketch13.addConstraint(Sketcher.Constraint("Diameter", 5, 28.575))
sketch13.addConstraint(Sketcher.Constraint("DistanceX", -1, 1, 0, 3, 8.0))
sketch13.addConstraint(Sketcher.Constraint("DistanceX", -1, 1, 1, 3, 42.0))
sketch13.addConstraint(Sketcher.Constraint("DistanceX", -1, 1, 3, 3, 5.0))
sketch13.addConstraint(Sketcher.Constraint("DistanceY", 0, 3, 1, 3, 81.0))
sketch13.addConstraint(Sketcher.Constraint("DistanceY", 3, 3, 1, 3, 2.0))
sketch13.addConstraint(Sketcher.Constraint("DistanceY", 5, 3, 3, 3, 18.0))
sketch13.addConstraint(Sketcher.Constraint("DistanceY", -1, 1, 0, 3, 46.5))
sketch13.addConstraint(Sketcher.Constraint("DistanceX", -1, 1, 4, 3, 22.8))
sketch13.addConstraint(Sketcher.Constraint("DistanceY", -1, 1, 4, 3, 78.24))
pad2 = body.newObject("PartDesign::Pad", "Pad001")
pad2.Profile = sketch13
pad2.Length = 3
pad2.Reversed = True

# Sketch on YZ plane
sketch14 = body.newObject("Sketcher::SketchObject", "Sketch013")
sketch14.AttachmentSupport = (doc.getObject("YZ_Plane"), [""])
sketch14.MapMode = "FlatFace"
sketch14.AttachmentOffset = App.Placement(App.Vector(0, 0, 3), App.Rotation())
sketch14.addGeometry(Part.Circle(App.Vector(42, 46.5, 0), App.Vector(0, 0, 1), 4.5), False)
sketch14.addGeometry(Part.Circle(App.Vector(5, 125.5, 0), App.Vector(0, 0, 1), 4.5), False)
sketch14.addGeometry(Part.Circle(App.Vector(42, 127.5, 0), App.Vector(0, 0, 1), 4.5), False)
sketch14.addGeometry(Part.Circle(App.Vector(8, 46.5, 0), App.Vector(0, 0, 1), 4.5), False)
sketch14.addGeometry(Part.Circle(App.Vector(22.8, 78.2, 0), App.Vector(0, 0, 1), 6.5), False)
sketch14.addGeometry(Part.Circle(App.Vector(22.8, 107.5, 0), App.Vector(0, 0, 1), 14.3), False)
sketch14.addConstraint(Sketcher.Constraint("Equal", 0, 1))
sketch14.addConstraint(Sketcher.Constraint("Equal", 1, 2))
sketch14.addConstraint(Sketcher.Constraint("Equal", 2, 3))
sketch14.addConstraint(Sketcher.Constraint("Horizontal", 0, 3, 3, 3))
sketch14.addConstraint(Sketcher.Constraint("Vertical", 0, 3, 2, 3))
sketch14.addConstraint(Sketcher.Constraint("Vertical", 4, 3, 5, 3))
sketch14.addConstraint(Sketcher.Constraint("Diameter", 0, 9.0))
sketch14.addConstraint(Sketcher.Constraint("Diameter", 4, 13.0))
sketch14.addConstraint(Sketcher.Constraint("Diameter", 5, 28.575))
sketch14.addConstraint(Sketcher.Constraint("DistanceX", -1, 1, 0, 3, 42.0))
sketch14.addConstraint(Sketcher.Constraint("DistanceX", -1, 1, 1, 3, 5.0))
sketch14.addConstraint(Sketcher.Constraint("DistanceX", -1, 1, 3, 3, 8.0))
sketch14.addConstraint(Sketcher.Constraint("DistanceY", 0, 3, 1, 3, 79.0))
sketch14.addConstraint(Sketcher.Constraint("DistanceY", 1, 3, 2, 3, 2.0))
sketch14.addConstraint(Sketcher.Constraint("DistanceY", 5, 3, 1, 3, 18.0))
sketch14.addConstraint(Sketcher.Constraint("DistanceY", -1, 1, 0, 3, 46.5))
sketch14.addConstraint(Sketcher.Constraint("DistanceX", -1, 1, 4, 3, 22.8))
sketch14.addConstraint(Sketcher.Constraint("DistanceY", -1, 1, 4, 3, 78.24))
pad3 = body.newObject("PartDesign::Pad", "Pad002")
pad3.Profile = sketch14
pad3.Length = 3
pad3.Reversed = True

# Sketch on XZ plane
sketch15 = body.newObject("Sketcher::SketchObject", "Sketch014")
sketch15.AttachmentSupport = (doc.getObject("XZ_Plane"), [""])
sketch15.MapMode = "FlatFace"
sketch15.AttachmentOffset = App.Placement(App.Vector(0, 0, -50), App.Rotation())
sketch15.addGeometry(Part.Circle(App.Vector(20, 110, 0), App.Vector(0, 0, 1), 2.5), False)
sketch15.addGeometry(Part.Circle(App.Vector(20, 90, 0), App.Vector(0, 0, 1), 2.5), False)
sketch15.addGeometry(Part.Circle(App.Vector(20, 70, 0), App.Vector(0, 0, 1), 2.5), False)
sketch15.addConstraint(Sketcher.Constraint("Equal", 0, 1))
sketch15.addConstraint(Sketcher.Constraint("Equal", 1, 2))
sketch15.addConstraint(Sketcher.Constraint("Vertical", 0, 3, 1, 3))
sketch15.addConstraint(Sketcher.Constraint("Vertical", 1, 3, 2, 3))
sketch15.addConstraint(Sketcher.Constraint("Diameter", 0, 5.0))
sketch15.addConstraint(Sketcher.Constraint("DistanceX", -1, 1, 0, 3, 20.0))
sketch15.addConstraint(Sketcher.Constraint("DistanceY", -1, 1, 0, 3, 110.0))
sketch15.addConstraint(Sketcher.Constraint("DistanceY", -1, 1, 1, 3, 90.0))
sketch15.addConstraint(Sketcher.Constraint("DistanceY", -1, 1, 2, 3, 70.0))
doc.recompute()
hole10 = body.newObject("PartDesign::Hole", "Hole009")
hole10.Profile = sketch15
hole10.ThreadType = "None"
hole10.Diameter = 5
hole10.DepthType = "Dimension"
hole10.Depth = 8
hole10.DrillPoint = "Angled"
hole10.DrillPointAngle = 118
hole10.Reversed = True

doc.recompute()
